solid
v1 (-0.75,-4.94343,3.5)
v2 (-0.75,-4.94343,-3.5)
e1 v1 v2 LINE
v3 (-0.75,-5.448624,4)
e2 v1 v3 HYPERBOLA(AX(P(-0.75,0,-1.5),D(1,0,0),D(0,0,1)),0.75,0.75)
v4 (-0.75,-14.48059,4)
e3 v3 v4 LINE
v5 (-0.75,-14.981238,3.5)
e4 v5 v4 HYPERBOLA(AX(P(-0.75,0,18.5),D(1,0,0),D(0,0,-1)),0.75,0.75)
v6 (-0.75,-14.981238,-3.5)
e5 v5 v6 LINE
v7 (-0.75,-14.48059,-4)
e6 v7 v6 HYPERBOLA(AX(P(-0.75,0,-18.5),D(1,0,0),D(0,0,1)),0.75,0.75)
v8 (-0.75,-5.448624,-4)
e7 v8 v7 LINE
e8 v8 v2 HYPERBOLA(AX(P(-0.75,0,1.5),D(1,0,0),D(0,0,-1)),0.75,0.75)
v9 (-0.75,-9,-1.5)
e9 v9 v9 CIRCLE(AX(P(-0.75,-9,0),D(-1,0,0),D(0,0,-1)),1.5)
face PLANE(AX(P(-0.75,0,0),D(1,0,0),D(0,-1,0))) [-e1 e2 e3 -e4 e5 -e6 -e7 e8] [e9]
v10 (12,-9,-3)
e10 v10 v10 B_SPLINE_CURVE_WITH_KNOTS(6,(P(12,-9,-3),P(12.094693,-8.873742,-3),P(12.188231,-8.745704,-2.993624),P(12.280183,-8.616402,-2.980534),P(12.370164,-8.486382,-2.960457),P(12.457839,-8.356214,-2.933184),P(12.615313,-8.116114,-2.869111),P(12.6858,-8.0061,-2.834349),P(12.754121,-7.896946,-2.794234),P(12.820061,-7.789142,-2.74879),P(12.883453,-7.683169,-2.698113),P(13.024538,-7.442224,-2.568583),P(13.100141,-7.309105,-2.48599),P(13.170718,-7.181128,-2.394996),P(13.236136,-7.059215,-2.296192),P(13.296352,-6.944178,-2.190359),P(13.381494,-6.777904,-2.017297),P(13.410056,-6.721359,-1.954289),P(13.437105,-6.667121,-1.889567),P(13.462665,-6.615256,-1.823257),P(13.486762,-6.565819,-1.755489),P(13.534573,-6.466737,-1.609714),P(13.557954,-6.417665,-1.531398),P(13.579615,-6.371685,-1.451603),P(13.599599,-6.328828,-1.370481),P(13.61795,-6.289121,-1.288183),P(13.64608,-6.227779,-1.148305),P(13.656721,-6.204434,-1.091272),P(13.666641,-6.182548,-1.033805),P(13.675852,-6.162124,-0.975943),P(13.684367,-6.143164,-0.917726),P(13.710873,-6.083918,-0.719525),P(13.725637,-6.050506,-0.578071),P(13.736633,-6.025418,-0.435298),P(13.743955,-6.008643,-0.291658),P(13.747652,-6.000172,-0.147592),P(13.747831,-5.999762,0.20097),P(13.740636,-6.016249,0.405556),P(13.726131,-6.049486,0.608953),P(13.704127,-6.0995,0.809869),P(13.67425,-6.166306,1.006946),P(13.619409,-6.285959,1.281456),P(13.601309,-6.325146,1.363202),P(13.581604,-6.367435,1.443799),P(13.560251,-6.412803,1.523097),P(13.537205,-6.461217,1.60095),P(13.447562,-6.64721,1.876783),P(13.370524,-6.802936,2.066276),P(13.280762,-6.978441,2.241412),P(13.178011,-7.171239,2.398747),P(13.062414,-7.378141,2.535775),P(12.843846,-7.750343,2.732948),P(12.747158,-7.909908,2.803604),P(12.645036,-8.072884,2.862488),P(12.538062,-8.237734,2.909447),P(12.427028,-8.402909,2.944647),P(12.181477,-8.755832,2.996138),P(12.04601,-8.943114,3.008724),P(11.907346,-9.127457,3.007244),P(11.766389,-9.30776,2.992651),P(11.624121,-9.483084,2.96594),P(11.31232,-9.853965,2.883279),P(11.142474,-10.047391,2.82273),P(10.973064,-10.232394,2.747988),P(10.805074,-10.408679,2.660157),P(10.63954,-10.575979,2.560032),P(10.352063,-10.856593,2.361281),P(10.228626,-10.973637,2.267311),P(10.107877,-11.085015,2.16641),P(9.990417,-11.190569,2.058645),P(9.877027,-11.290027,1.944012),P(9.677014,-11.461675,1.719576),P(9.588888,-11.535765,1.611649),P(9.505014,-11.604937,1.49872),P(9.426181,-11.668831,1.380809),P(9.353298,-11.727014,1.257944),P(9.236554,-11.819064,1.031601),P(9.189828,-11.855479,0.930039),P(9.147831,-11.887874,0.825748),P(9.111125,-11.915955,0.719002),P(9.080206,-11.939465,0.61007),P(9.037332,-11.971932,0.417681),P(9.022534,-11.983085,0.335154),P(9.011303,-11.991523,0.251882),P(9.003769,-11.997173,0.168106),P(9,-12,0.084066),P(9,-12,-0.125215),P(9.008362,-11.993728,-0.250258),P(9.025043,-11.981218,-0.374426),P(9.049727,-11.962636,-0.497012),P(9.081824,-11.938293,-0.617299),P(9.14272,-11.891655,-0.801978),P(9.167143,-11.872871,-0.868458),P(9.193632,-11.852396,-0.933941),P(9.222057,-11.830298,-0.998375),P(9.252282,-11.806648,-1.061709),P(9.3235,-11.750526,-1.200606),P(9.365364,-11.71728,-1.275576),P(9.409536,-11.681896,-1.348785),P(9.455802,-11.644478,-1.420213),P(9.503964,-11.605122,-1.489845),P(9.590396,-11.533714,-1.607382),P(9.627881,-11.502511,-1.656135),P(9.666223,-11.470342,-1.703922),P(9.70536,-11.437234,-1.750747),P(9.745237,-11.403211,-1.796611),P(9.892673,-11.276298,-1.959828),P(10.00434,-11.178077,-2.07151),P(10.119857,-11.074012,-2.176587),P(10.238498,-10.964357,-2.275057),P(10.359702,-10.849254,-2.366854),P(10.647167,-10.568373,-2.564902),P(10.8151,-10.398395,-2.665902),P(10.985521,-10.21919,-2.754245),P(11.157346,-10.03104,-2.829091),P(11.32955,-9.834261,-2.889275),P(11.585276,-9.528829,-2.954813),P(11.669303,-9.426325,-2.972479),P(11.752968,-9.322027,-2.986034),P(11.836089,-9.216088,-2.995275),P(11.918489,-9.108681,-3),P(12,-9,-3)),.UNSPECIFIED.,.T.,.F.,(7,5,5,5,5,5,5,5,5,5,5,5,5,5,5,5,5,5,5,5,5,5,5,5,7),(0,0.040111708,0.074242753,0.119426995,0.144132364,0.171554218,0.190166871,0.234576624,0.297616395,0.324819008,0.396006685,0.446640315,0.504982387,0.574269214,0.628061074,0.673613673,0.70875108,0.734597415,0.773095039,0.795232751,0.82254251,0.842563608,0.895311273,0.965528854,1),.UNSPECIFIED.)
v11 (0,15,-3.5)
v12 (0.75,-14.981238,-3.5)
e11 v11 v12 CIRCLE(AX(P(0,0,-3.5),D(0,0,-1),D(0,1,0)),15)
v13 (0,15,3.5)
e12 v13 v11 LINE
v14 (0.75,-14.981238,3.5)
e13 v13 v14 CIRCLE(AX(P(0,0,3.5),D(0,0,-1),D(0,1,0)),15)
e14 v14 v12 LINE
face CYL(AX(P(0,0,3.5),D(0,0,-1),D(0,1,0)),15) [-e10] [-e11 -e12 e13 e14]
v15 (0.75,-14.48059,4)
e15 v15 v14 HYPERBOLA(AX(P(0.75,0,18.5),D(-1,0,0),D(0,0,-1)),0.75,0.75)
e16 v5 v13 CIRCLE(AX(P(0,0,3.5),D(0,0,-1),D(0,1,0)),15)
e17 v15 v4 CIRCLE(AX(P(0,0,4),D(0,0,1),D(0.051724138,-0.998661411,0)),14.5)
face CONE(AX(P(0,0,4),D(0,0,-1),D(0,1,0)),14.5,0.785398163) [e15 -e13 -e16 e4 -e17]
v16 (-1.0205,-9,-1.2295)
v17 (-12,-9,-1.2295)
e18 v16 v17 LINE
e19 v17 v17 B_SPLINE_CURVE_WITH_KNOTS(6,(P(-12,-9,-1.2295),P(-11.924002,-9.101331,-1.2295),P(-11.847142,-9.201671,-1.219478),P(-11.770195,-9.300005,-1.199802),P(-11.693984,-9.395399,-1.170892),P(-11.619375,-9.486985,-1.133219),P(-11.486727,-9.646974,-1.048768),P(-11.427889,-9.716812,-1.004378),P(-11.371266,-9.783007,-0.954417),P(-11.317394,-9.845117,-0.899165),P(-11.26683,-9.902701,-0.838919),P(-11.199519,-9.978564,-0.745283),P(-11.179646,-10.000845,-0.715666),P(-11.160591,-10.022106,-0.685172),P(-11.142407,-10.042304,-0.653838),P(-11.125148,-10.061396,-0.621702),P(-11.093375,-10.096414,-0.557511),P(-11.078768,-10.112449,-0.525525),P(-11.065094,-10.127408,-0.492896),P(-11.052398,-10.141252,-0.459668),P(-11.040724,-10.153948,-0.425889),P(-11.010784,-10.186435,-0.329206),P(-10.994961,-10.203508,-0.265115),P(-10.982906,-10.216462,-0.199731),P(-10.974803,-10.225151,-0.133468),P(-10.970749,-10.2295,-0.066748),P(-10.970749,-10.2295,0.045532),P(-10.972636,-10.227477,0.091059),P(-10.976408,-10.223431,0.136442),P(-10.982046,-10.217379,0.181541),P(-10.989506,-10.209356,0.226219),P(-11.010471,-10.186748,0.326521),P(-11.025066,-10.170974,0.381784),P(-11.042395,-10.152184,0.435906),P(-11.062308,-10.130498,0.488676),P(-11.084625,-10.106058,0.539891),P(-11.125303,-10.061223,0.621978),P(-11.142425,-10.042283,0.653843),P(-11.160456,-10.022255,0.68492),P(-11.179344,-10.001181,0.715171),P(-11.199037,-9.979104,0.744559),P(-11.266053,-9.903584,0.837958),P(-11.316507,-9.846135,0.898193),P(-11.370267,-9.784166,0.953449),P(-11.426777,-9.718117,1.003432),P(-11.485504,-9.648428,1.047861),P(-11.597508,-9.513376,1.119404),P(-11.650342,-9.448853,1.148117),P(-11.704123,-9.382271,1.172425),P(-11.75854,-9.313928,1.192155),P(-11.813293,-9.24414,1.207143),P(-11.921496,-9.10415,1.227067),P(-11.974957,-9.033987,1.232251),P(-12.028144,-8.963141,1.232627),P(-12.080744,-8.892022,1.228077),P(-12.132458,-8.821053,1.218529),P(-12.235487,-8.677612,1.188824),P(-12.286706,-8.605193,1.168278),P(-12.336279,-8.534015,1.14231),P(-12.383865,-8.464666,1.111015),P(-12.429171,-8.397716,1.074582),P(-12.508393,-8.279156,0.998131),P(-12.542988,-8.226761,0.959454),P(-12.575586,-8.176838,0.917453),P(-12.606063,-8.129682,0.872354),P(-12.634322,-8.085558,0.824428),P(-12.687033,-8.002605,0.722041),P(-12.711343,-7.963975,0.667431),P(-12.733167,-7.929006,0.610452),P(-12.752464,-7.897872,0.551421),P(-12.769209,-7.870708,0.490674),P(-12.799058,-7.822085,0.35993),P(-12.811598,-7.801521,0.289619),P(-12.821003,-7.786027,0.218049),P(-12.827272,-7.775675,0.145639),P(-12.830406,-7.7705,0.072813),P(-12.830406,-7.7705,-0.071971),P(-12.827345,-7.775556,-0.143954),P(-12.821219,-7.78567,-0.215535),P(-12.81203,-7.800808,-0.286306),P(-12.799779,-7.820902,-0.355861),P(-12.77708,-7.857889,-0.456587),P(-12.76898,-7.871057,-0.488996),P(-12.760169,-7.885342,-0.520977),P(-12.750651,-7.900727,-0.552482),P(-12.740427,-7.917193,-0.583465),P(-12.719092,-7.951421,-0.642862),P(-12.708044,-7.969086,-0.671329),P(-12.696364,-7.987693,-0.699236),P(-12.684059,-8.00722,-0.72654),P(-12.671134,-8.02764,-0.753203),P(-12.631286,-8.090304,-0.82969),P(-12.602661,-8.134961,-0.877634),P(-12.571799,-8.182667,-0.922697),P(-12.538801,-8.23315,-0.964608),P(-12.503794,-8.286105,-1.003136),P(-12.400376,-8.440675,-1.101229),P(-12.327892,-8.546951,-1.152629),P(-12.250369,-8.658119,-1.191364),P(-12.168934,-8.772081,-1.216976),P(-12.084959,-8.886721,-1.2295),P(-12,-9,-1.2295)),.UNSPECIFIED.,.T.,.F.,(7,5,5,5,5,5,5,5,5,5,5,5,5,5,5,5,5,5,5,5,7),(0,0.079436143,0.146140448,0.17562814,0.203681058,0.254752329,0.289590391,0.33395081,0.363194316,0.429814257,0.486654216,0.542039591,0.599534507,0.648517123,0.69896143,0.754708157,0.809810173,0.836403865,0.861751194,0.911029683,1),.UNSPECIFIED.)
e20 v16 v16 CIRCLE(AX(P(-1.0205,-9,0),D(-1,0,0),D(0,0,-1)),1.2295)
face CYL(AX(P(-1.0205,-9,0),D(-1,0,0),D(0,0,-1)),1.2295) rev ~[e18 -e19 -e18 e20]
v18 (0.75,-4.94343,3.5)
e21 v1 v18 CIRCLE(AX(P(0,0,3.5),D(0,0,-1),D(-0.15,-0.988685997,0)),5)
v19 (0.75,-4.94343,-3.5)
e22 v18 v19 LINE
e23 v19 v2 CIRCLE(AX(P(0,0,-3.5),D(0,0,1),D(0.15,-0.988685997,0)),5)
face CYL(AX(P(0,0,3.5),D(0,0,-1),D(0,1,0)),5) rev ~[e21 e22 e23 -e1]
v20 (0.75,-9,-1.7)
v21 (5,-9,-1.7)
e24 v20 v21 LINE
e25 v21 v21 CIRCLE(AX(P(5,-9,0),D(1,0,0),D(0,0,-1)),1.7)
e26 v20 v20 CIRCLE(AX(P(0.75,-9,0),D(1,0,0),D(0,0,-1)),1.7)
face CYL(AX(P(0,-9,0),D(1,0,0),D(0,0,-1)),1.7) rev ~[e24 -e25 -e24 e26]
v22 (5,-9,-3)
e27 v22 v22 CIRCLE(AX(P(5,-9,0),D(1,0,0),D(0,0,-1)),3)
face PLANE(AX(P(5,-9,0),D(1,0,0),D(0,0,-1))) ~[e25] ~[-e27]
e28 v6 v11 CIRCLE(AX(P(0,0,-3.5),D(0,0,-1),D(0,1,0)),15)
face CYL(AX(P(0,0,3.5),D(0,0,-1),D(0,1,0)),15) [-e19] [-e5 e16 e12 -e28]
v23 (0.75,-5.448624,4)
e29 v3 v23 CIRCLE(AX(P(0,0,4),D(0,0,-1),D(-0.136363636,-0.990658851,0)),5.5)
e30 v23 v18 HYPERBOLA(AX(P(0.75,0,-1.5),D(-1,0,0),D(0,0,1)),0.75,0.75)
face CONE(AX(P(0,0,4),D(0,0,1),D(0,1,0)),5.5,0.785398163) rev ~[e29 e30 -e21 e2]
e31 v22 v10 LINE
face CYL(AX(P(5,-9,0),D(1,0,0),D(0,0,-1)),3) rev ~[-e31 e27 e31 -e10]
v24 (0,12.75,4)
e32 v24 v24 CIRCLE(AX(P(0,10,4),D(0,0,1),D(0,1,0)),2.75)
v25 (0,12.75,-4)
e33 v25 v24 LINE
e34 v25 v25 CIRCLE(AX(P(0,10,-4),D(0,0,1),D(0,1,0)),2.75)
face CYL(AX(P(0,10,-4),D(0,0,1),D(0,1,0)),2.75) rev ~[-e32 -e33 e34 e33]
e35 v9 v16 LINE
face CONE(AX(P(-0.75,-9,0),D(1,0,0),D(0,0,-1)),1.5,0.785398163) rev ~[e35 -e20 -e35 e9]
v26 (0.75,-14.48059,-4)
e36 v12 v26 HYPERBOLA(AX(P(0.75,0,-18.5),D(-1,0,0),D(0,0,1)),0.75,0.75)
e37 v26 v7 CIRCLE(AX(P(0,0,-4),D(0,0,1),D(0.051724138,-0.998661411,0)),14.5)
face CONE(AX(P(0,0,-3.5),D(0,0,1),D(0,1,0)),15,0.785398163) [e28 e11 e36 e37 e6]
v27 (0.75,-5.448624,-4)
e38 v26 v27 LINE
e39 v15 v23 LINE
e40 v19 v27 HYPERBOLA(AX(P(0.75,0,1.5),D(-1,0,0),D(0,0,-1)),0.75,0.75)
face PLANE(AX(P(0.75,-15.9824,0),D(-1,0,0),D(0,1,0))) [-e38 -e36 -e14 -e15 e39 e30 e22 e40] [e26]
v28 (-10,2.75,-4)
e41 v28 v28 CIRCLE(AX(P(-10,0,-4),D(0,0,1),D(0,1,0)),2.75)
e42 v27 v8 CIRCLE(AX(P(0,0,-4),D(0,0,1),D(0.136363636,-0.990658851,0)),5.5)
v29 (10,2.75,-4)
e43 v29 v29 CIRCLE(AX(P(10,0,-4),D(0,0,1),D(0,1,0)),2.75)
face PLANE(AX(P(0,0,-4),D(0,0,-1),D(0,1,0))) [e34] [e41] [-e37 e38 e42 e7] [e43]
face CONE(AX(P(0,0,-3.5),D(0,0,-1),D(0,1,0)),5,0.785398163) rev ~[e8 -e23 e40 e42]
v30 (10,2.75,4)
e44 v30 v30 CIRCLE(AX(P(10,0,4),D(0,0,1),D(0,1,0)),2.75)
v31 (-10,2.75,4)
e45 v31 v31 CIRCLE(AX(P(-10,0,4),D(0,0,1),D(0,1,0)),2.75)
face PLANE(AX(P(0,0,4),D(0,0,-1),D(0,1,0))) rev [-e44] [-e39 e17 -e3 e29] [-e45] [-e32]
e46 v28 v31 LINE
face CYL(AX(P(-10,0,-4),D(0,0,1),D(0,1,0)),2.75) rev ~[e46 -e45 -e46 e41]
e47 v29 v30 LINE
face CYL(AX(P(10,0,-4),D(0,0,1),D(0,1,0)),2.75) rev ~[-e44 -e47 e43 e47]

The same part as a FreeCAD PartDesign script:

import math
import FreeCAD as App
import Part
import Sketcher
from FreeCAD import Vector
Q = App.Units.Quantity


def add_polygon(sketch, points):
    """Adds a closed chain of lines whose ends are joined by coincident constraints."""
    first, n = sketch.GeometryCount, len(points)
    for a, b in zip(points, points[1:] + points[:1]):
        sketch.addGeometry(Part.LineSegment(App.Vector(*a, 0), App.Vector(*b, 0)), False)
    for i in range(n):
        sketch.addConstraint(Sketcher.Constraint("Coincident", first + i, 2, first + (i + 1) % n, 1))

doc = App.newDocument("Part")
params = doc.addObject("Spreadsheet::Sheet", "Params")
for row, (alias, value) in enumerate([
    ("sketch1_height", "8 mm"),
    ("sketch1_height2", "7 mm"),
    ("sketch1_width", "14.5 mm"),
    ("revolution_angle", "360 deg"),
    ("sketch2_height", "8 mm"),
    ("sketch2_height2", "7 mm"),
    ("sketch2_width", "5.5 mm"),
    ("groove_angle", "360 deg"),
    ("sketch3_radius", "16 mm"),
    ("sketch3_width", "1.5 mm"),
    ("pocket1_length", "8 mm"),
    ("sketch4_diameter", "5.5 mm"),
    ("hole_diameter", "5.5 mm"),
    ("hole_depth", "8 mm"),
    ("sketch5_diameter", "5.5 mm"),
    ("hole2_diameter", "5.5 mm"),
    ("hole2_depth", "8 mm"),
    ("sketch6_diameter", "5.5 mm"),
    ("hole3_diameter", "5.5 mm"),
    ("hole3_depth", "8 mm"),
    ("sketch7_width", "15 mm"),
    ("sketch7_width2", "10 mm"),
    ("sketch7_height", "3 mm"),
    ("sketch7_height2", "1.3 mm"),
    ("groove2_angle", "360 deg"),
    ("hole4_diameter", "2.459 mm"),
    ("hole4_depth", "12.2404 mm"),
    ("hole4_csink_diameter", "3 mm"),
], start=1):
    params.set(f"A{row}", alias)
    params.set(f"B{row}", "=" + value)
    params.setAlias(f"B{row}", alias)

body = doc.addObject("PartDesign::Body", "Body")

# Sketch on YZ plane
sketch1 = body.newObject("Sketcher::SketchObject", "Sketch")
sketch1.AttachmentSupport = (doc.getObject("YZ_Plane"), [""])
sketch1.MapMode = "FlatFace"
add_polygon(sketch1, [(0, 4), (0, -4), (14.5, -4), (15, -3.5), (15, 3.5), (14.5, 4)])  # lines 0-5
sketch1.addConstraint([
    Sketcher.Constraint("Vertical", 0),
    Sketcher.Constraint("Horizontal", 1),
    Sketcher.Constraint("Vertical", 3),
    Sketcher.Constraint("Horizontal", 5),
    Sketcher.Constraint("Symmetric", 0, 2, 5, 2, -1, 1),
    Sketcher.Constraint("Perpendicular", 2, 4),
    Sketcher.Constraint("Vertical", 1, 2, 4, 2),
    Sketcher.Constraint("Equal", 2, 4),
    Sketcher.Constraint("DistanceY", 0, 2, 0, 1, Q("8 mm")),
    Sketcher.Constraint("DistanceY", 3, 1, 3, 2, Q("7 mm")),
    Sketcher.Constraint("DistanceX", 1, 1, 1, 2, Q("14.5 mm")),
])
sketch1.setExpression("Constraints[14]", "Params.sketch1_height")
sketch1.setExpression("Constraints[15]", "Params.sketch1_height2")
sketch1.setExpression("Constraints[16]", "Params.sketch1_width")
revolution = body.newObject("PartDesign::Revolution", "Revolution")
revolution.Profile = sketch1
revolution.ReferenceAxis = (sketch1, ["V_Axis"])
revolution.setExpression("Angle", "Params.revolution_angle")

# Sketch on YZ plane
sketch2 = body.newObject("Sketcher::SketchObject", "Sketch001")
sketch2.AttachmentSupport = (doc.getObject("YZ_Plane"), [""])
sketch2.MapMode = "FlatFace"
add_polygon(sketch2, [(0, 4), (0, -4), (5.5, -4), (5, -3.5), (5, 3.5), (5.5, 4)])  # lines 0-5
sketch2.addConstraint([
    Sketcher.Constraint("Vertical", 0),
    Sketcher.Constraint("Horizontal", 1),
    Sketcher.Constraint("Vertical", 3),
    Sketcher.Constraint("Horizontal", 5),
    Sketcher.Constraint("Symmetric", 0, 2, 5, 2, -1, 1),
    Sketcher.Constraint("Perpendicular", 2, 4),
    Sketcher.Constraint("Vertical", 1, 2, 4, 2),
    Sketcher.Constraint("Equal", 2, 4),
    Sketcher.Constraint("DistanceY", 0, 2, 0, 1, Q("8 mm")),
    Sketcher.Constraint("DistanceY", 3, 1, 3, 2, Q("7 mm")),
    Sketcher.Constraint("DistanceX", 1, 1, 1, 2, Q("5.5 mm")),
])
sketch2.setExpression("Constraints[14]", "Params.sketch2_height")
sketch2.setExpression("Constraints[15]", "Params.sketch2_height2")
sketch2.setExpression("Constraints[16]", "Params.sketch2_width")
groove = body.newObject("PartDesign::Groove", "Groove")
groove.Profile = sketch2
groove.ReferenceAxis = (sketch2, ["V_Axis"])
groove.setExpression("Angle", "Params.groove_angle")

# Sketch on XY plane
sketch3 = body.newObject("Sketcher::SketchObject", "Sketch002")
sketch3.AttachmentSupport = (doc.getObject("XY_Plane"), [""])
sketch3.MapMode = "FlatFace"
sketch3.addGeometry([
    Part.LineSegment(Vector(-0.8, 0, 0), Vector(-0.8, -16, 0)),
    Part.ArcOfCircle(Part.Circle(Vector(0, 0, 0), Vector(0, 0, 1), 16), math.radians(-92.69), math.radians(-87.31)),
    Part.LineSegment(Vector(0.8, -16, 0), Vector(0.8, 0, 0)),
    Part.LineSegment(Vector(0.8, 0, 0), Vector(-0.8, 0, 0)),
], False)
sketch3.addConstraint([
    Sketcher.Constraint("Coincident", 0, 2, 1, 1),
    Sketcher.Constraint("Coincident", 1, 2, 2, 1),
    Sketcher.Constraint("Coincident", 2, 2, 3, 1),
    Sketcher.Constraint("Coincident", 3, 2, 0, 1),
    Sketcher.Constraint("Vertical", 0),
    Sketcher.Constraint("Vertical", 2),
    Sketcher.Constraint("Horizontal", 3),
    Sketcher.Constraint("Coincident", 1, 3, -1, 1),
    Sketcher.Constraint("Symmetric", 2, 2, 3, 2, -1, 1),
    Sketcher.Constraint("Radius", 1, Q("16 mm")),
    Sketcher.Constraint("DistanceX", 3, 2, 3, 1, Q("1.5 mm")),
])
sketch3.setExpression("Constraints[9]", "Params.sketch3_radius")
sketch3.setExpression("Constraints[10]", "Params.sketch3_width")
pocket1 = body.newObject("PartDesign::Pocket", "Pocket")
pocket1.Profile = sketch3
pocket1.setExpression("Length", "Params.pocket1_length")
pocket1.Midplane = True

# Sketch on XY plane
sketch4 = body.newObject("Sketcher::SketchObject", "Sketch003")
sketch4.AttachmentSupport = (doc.getObject("XY_Plane"), [""])
sketch4.MapMode = "FlatFace"
sketch4.AttachmentOffset = App.Placement(Vector(0, 0, -4), App.Rotation())
sketch4.addGeometry(Part.Circle(Vector(10, 0, 0), Vector(0, 0, 1), 2.8), False)
sketch4.addConstraint([
    Sketcher.Constraint("PointOnObject", 0, 3, -1),
    Sketcher.Constraint("Diameter", 0, Q("5.5 mm")),
    Sketcher.Constraint("DistanceX", -1, 1, 0, 3, Q("10 mm")),
])
sketch4.setExpression("Constraints[1]", "Params.sketch4_diameter")
doc.recompute()
hole = body.newObject("PartDesign::Hole", "Hole")
hole.Profile = sketch4
hole.ThreadType = "None"
hole.setExpression("Diameter", "Params.hole_diameter")
hole.DepthType = "Dimension"
hole.setExpression("Depth", "Params.hole_depth")
hole.DrillPoint = "Flat"
hole.Reversed = True

# Sketch on XY plane
sketch5 = body.newObject("Sketcher::SketchObject", "Sketch004")
sketch5.AttachmentSupport = (doc.getObject("XY_Plane"), [""])
sketch5.MapMode = "FlatFace"
sketch5.AttachmentOffset = App.Placement(Vector(0, 0, -4), App.Rotation())
sketch5.addGeometry(Part.Circle(Vector(-10, 0, 0), Vector(0, 0, 1), 2.8), False)
sketch5.addConstraint([
    Sketcher.Constraint("PointOnObject", 0, 3, -1),
    Sketcher.Constraint("Diameter", 0, Q("5.5 mm")),
    Sketcher.Constraint("DistanceX", 0, 3, -1, 1, Q("10 mm")),
])
sketch5.setExpression("Constraints[1]", "Params.sketch5_diameter")
doc.recompute()
hole2 = body.newObject("PartDesign::Hole", "Hole001")
hole2.Profile = sketch5
hole2.ThreadType = "None"
hole2.setExpression("Diameter", "Params.hole2_diameter")
hole2.DepthType = "Dimension"
hole2.setExpression("Depth", "Params.hole2_depth")
hole2.DrillPoint = "Flat"
hole2.Reversed = True

# Sketch on XY plane
sketch6 = body.newObject("Sketcher::SketchObject", "Sketch005")
sketch6.AttachmentSupport = (doc.getObject("XY_Plane"), [""])
sketch6.MapMode = "FlatFace"
sketch6.AttachmentOffset = App.Placement(Vector(0, 0, -4), App.Rotation())
sketch6.addGeometry(Part.Circle(Vector(0, 10, 0), Vector(0, 0, 1), 2.8), False)
sketch6.addConstraint([
    Sketcher.Constraint("PointOnObject", 0, 3, -2),
    Sketcher.Constraint("Diameter", 0, Q("5.5 mm")),
    Sketcher.Constraint("DistanceY", -1, 1, 0, 3, Q("10 mm")),
])
sketch6.setExpression("Constraints[1]", "Params.sketch6_diameter")
doc.recompute()
hole3 = body.newObject("PartDesign::Hole", "Hole002")
hole3.Profile = sketch6
hole3.ThreadType = "None"
hole3.setExpression("Diameter", "Params.hole3_diameter")
hole3.DepthType = "Dimension"
hole3.setExpression("Depth", "Params.hole3_depth")
hole3.DrillPoint = "Flat"
hole3.Reversed = True

# Sketch on XZ plane
sketch7 = body.newObject("Sketcher::SketchObject", "Sketch006")
sketch7.AttachmentSupport = (doc.getObject("XZ_Plane"), [""])
sketch7.MapMode = "FlatFace"
sketch7.AttachmentOffset = App.Placement(Vector(0, 0, 9), App.Rotation())
add_polygon(sketch7, [(0, 0), (15, 0), (15, -3), (5, -3), (5, -1.7), (0, -1.7)])  # lines 0-5
sketch7.addConstraint([
    Sketcher.Constraint("Horizontal", 0),
    Sketcher.Constraint("Vertical", 1),
    Sketcher.Constraint("Horizontal", 2),
    Sketcher.Constraint("Vertical", 3),
    Sketcher.Constraint("Horizontal", 4),
    Sketcher.Constraint("Vertical", 5),
    Sketcher.Constraint("Coincident", 5, 2, -1, 1),
    Sketcher.Constraint("DistanceX", 0, 1, 0, 2, Q("15 mm")),
    Sketcher.Constraint("DistanceX", 2, 2, 2, 1, Q("10 mm")),
    Sketcher.Constraint("DistanceY", 1, 2, 1, 1, Q("3 mm")),
    Sketcher.Constraint("DistanceY", 3, 1, 3, 2, Q("1.3 mm")),
])
sketch7.setExpression("Constraints[13]", "Params.sketch7_width")
sketch7.setExpression("Constraints[14]", "Params.sketch7_width2")
sketch7.setExpression("Constraints[15]", "Params.sketch7_height")
sketch7.setExpression("Constraints[16]", "Params.sketch7_height2")
groove2 = body.newObject("PartDesign::Groove", "Groove001")
groove2.Profile = sketch7
groove2.ReferenceAxis = (sketch7, ["H_Axis"])
groove2.setExpression("Angle", "Params.groove2_angle")

# Sketch on YZ plane
sketch8 = body.newObject("Sketcher::SketchObject", "Sketch007")
sketch8.AttachmentSupport = (doc.getObject("YZ_Plane"), [""])
sketch8.MapMode = "FlatFace"
sketch8.AttachmentOffset = App.Placement(Vector(0, 0, -0.75), App.Rotation())
sketch8.addGeometry(Part.Circle(Vector(-9, 0, 0), Vector(0, 0, 1), 1.2), False)
sketch8.addConstraint([
    Sketcher.Constraint("PointOnObject", 0, 3, -1),
    Sketcher.Constraint("Diameter", 0, Q("2.459 mm")),
    Sketcher.Constraint("DistanceX", 0, 3, -1, 1, Q("9 mm")),
])
doc.recompute()
hole4 = body.newObject("PartDesign::Hole", "Hole003")
hole4.Profile = sketch8
hole4.ThreadType = "None"
hole4.setExpression("Diameter", "Params.hole4_diameter")
hole4.DepthType = "Dimension"
hole4.setExpression("Depth", "Params.hole4_depth")
hole4.DrillPoint = "Flat"
hole4.HoleCutType = "Countersink"
hole4.setExpression("HoleCutDiameter", "Params.hole4_csink_diameter")
hole4.HoleCutCountersinkAngle = 90

doc.recompute()
